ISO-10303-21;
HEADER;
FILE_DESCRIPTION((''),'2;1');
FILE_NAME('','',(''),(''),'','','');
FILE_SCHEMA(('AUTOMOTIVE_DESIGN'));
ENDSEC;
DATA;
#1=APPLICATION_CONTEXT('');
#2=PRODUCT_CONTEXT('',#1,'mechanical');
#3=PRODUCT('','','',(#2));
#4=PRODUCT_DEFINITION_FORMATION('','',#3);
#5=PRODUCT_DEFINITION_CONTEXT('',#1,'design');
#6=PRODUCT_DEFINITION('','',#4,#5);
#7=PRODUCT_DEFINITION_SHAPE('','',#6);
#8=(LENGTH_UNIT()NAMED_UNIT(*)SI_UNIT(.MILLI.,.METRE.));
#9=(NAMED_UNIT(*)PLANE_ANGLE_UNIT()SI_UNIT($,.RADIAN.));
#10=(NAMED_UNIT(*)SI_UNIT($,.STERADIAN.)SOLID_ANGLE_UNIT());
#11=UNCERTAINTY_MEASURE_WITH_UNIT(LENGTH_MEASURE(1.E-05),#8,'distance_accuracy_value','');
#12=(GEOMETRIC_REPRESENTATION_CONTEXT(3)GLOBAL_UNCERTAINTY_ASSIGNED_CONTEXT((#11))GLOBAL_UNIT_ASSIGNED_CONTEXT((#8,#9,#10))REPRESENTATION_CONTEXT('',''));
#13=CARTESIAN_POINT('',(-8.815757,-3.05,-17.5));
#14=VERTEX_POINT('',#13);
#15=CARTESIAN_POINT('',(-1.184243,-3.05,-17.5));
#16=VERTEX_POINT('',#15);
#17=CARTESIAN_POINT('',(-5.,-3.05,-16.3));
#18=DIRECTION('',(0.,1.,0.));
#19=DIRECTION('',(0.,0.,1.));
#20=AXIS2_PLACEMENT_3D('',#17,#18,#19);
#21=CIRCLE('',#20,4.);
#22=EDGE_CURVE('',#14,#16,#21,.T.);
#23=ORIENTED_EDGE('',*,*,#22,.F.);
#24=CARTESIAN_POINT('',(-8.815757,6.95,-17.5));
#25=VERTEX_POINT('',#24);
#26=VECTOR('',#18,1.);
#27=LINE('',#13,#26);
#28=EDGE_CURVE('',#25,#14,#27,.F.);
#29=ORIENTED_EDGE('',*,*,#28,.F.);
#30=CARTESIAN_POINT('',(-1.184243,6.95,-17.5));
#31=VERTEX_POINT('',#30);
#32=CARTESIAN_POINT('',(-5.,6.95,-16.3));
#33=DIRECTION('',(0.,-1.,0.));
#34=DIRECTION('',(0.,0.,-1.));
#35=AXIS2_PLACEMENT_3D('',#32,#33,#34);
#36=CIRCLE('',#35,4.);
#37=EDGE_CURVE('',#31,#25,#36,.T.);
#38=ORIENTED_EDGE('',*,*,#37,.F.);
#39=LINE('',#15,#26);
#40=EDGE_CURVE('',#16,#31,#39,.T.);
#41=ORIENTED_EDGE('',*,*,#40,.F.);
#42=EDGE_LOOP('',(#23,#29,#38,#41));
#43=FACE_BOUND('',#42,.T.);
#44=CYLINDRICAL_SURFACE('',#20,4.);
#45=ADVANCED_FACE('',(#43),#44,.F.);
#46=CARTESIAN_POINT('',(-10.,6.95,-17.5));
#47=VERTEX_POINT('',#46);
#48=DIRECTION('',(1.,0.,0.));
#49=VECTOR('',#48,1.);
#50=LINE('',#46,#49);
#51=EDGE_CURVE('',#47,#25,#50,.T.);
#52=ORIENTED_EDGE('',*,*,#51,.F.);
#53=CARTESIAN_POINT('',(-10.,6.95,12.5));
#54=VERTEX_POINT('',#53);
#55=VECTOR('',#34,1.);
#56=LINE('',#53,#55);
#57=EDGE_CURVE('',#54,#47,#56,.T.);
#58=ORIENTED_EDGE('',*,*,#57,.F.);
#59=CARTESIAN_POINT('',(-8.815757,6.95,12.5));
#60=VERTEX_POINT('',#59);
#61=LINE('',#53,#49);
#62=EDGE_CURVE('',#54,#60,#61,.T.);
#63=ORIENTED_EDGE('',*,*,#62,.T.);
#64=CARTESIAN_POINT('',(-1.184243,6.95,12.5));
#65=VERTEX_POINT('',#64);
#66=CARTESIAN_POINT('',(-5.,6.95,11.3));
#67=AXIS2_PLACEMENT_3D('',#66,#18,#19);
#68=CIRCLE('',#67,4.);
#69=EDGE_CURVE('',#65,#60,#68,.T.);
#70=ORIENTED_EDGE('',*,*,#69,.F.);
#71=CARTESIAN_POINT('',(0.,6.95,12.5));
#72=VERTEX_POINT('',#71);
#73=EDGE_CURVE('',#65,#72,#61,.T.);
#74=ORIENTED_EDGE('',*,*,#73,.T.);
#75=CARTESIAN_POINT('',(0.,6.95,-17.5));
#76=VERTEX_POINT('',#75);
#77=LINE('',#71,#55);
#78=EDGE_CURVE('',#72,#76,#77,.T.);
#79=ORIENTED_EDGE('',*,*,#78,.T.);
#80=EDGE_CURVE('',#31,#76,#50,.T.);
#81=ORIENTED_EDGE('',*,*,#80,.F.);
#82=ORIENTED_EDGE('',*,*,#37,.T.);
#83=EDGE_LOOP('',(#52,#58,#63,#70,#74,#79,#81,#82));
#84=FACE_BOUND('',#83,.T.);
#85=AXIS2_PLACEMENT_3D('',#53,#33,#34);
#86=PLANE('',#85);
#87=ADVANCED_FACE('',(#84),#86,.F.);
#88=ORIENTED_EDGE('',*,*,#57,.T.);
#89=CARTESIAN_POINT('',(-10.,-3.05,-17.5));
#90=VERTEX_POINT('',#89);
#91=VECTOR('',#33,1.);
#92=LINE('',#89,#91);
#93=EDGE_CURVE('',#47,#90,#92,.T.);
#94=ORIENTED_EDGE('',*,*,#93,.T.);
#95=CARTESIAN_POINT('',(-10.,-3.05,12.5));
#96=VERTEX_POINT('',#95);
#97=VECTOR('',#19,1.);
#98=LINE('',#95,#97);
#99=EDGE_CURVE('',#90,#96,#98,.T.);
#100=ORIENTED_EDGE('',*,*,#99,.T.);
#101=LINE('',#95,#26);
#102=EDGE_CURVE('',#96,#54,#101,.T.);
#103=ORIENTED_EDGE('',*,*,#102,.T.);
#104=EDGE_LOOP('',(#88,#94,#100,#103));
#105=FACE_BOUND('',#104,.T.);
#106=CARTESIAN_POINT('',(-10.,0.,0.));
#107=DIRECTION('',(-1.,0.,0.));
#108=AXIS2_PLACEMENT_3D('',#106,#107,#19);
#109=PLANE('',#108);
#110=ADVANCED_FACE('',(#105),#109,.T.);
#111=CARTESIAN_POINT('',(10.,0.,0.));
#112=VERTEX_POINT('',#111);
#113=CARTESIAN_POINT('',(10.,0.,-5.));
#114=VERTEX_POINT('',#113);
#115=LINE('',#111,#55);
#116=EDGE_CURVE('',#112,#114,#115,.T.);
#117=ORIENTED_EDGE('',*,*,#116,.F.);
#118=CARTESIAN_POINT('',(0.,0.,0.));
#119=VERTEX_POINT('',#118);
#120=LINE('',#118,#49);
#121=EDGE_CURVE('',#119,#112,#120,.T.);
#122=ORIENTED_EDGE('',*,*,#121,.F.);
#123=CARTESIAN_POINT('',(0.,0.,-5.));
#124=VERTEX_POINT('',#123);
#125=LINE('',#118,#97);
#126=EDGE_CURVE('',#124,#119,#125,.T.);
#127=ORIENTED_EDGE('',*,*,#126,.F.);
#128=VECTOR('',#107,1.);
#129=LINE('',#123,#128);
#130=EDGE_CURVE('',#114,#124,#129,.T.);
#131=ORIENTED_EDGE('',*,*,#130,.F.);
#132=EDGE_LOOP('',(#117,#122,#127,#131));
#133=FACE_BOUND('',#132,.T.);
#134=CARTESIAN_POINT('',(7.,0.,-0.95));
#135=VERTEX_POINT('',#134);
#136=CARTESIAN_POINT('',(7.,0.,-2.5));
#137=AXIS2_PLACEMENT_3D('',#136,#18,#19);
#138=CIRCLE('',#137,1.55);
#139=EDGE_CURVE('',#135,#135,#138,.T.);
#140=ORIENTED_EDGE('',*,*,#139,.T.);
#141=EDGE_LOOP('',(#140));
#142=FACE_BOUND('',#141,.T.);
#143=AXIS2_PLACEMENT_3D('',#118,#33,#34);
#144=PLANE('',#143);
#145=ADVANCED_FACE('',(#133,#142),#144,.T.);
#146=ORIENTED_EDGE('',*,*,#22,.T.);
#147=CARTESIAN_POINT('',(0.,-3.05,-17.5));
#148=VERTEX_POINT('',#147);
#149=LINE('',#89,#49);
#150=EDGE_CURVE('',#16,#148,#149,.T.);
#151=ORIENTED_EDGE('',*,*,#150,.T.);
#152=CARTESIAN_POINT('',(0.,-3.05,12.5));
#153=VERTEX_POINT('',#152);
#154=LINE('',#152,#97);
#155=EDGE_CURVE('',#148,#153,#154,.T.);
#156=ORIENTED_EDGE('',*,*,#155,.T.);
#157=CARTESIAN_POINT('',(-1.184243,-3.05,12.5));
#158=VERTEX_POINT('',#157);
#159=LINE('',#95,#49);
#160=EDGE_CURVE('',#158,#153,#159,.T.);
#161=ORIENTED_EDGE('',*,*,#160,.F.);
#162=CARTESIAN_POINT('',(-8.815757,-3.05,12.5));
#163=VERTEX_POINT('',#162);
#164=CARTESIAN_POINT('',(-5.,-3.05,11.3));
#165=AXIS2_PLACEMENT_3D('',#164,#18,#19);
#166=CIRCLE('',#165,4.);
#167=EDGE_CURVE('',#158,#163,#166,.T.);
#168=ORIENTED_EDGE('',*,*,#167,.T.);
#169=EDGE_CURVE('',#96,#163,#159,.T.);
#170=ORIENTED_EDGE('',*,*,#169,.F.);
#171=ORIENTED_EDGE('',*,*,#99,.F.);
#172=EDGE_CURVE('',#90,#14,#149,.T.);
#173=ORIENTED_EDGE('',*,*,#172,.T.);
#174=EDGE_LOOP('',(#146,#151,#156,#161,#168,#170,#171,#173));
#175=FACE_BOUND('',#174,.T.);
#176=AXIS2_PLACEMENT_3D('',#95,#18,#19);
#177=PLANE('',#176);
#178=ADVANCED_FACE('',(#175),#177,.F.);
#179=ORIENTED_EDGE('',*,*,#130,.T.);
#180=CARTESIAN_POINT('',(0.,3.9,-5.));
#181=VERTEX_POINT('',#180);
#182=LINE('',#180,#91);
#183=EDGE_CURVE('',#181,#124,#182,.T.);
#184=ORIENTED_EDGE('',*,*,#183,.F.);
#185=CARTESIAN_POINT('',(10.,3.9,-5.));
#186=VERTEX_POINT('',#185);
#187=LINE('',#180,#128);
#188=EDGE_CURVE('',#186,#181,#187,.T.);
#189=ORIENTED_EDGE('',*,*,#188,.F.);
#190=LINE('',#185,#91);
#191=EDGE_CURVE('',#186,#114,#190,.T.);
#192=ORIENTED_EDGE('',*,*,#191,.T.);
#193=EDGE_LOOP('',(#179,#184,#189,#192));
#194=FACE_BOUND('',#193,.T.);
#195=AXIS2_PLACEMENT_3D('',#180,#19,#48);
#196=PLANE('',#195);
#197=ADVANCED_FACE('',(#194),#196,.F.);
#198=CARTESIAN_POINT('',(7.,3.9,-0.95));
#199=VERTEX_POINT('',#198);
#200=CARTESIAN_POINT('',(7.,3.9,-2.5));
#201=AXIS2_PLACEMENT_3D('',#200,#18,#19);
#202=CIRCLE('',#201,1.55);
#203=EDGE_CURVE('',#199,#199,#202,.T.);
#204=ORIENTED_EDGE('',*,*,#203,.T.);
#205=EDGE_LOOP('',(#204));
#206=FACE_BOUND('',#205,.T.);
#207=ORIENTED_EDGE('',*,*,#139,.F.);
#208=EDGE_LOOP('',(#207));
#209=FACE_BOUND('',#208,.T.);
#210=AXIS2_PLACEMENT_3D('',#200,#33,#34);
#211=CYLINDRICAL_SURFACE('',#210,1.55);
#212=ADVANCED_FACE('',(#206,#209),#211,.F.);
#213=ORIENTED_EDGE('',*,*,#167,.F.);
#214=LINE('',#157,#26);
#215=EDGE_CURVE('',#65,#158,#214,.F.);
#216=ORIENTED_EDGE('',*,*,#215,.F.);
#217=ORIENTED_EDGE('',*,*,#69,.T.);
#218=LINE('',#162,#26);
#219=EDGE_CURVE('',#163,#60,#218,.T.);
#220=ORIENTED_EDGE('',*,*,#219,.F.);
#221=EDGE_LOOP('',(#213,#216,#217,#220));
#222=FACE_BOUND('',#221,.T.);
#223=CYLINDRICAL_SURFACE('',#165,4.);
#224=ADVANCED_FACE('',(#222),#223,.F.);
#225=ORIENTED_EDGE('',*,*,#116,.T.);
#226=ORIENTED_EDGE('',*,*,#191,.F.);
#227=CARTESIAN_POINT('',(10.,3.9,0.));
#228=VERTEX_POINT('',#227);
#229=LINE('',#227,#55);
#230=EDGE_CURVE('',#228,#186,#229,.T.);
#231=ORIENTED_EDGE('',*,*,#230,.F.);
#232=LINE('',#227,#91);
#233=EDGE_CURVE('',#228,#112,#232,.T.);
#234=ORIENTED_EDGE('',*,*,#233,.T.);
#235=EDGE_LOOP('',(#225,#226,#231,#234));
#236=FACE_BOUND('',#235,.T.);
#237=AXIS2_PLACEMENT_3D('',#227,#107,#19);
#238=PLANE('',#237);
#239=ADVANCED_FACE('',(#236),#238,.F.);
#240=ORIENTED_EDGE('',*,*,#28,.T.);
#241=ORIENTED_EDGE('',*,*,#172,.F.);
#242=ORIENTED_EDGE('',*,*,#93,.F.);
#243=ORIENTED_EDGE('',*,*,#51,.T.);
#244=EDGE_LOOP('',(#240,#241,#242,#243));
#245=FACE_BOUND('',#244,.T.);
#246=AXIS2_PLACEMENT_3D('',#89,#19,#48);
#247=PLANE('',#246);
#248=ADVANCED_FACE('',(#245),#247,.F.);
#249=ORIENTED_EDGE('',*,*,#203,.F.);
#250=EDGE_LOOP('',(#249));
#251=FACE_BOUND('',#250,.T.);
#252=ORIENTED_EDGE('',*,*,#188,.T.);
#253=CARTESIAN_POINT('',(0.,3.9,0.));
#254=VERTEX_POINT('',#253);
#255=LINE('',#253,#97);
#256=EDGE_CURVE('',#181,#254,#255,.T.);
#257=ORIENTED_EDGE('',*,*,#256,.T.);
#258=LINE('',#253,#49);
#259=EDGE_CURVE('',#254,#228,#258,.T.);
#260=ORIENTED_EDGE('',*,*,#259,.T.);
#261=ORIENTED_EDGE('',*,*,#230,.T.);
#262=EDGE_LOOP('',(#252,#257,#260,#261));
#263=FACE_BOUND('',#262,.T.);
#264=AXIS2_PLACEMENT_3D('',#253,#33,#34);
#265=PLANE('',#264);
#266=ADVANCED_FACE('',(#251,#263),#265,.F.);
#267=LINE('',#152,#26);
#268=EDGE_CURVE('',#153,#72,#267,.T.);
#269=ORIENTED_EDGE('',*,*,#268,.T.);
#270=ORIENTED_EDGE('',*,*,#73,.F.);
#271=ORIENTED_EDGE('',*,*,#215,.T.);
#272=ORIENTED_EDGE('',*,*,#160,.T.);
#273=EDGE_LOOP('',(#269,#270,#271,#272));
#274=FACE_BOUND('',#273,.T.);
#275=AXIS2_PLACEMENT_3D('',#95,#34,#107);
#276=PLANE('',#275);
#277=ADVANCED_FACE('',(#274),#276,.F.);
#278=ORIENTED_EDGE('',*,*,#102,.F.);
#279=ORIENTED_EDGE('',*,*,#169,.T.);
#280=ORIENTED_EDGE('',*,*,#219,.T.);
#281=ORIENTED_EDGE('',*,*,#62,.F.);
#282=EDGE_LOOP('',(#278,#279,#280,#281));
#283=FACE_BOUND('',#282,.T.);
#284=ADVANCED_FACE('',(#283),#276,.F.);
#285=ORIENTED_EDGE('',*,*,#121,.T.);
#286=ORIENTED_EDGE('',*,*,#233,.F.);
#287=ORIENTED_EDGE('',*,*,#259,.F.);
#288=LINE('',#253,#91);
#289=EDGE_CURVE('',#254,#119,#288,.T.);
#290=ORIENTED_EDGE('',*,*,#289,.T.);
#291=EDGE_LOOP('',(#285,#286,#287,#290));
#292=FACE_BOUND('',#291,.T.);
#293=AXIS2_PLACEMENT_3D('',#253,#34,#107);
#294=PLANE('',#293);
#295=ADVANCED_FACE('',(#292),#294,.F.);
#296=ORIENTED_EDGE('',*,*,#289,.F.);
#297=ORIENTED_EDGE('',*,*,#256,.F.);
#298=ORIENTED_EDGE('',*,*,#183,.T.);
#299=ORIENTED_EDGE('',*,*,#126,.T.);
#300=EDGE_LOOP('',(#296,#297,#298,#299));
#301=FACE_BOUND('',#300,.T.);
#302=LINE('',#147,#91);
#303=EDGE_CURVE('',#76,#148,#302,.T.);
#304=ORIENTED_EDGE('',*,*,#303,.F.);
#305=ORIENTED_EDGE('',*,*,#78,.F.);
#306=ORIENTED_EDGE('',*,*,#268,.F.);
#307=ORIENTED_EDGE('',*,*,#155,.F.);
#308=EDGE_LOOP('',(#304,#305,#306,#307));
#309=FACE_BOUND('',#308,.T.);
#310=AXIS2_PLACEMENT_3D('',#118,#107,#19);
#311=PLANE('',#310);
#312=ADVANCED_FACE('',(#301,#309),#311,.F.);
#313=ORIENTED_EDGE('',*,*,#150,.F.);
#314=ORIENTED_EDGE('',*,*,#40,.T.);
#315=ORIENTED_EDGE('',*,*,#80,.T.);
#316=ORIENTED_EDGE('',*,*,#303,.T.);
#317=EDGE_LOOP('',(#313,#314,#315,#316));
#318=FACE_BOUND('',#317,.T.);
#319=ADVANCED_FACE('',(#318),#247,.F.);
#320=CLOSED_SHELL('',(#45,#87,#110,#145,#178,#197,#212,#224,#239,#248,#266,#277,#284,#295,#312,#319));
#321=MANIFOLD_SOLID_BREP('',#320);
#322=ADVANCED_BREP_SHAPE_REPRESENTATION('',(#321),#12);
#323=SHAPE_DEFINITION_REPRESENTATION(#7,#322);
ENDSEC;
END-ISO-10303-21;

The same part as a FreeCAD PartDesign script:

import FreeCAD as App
import Part
import Sketcher

V = App.Vector


def add_polygon(sketch, points):
    """Adds a closed chain of lines whose ends are joined by coincident constraints."""
    first, n = sketch.GeometryCount, len(points)
    for a, b in zip(points, points[1:] + points[:1]):
        sketch.addGeometry(Part.LineSegment(App.Vector(*a, 0), App.Vector(*b, 0)), False)
    for i in range(n):
        sketch.addConstraint(Sketcher.Constraint("Coincident", first + i, 2, first + (i + 1) % n, 1))

doc = App.newDocument("Part")
body = doc.addObject("PartDesign::Body", "Body")

sketch1 = doc.addObject("Sketcher::SketchObject", "Sketch")
body.addObject(sketch1)
sketch1.AttachmentSupport = (doc.XZ_Plane, [""])
sketch1.MapMode = "FlatFace"
add_polygon(sketch1, [(0, -5), (0, 0), (10, 0), (10, -5)])
sketch1.addGeometry(Part.Circle(V(7, -2.5, 0), V(0, 0, 1), 1.6), False)
sketch1.addConstraint(Sketcher.Constraint("Vertical", 0))
sketch1.addConstraint(Sketcher.Constraint("Horizontal", 1))
sketch1.addConstraint(Sketcher.Constraint("Vertical", 2))
sketch1.addConstraint(Sketcher.Constraint("Horizontal", 3))
sketch1.addConstraint(Sketcher.Constraint("Coincident", 0, 2, -1, 1))
sketch1.addConstraint(Sketcher.Constraint("Diameter", 4, 3.1))
sketch1.addConstraint(Sketcher.Constraint("DistanceX", 1, 1, 1, 2, 10.0))
sketch1.addConstraint(Sketcher.Constraint("DistanceY", 0, 1, 0, 2, 5.0))
sketch1.addConstraint(Sketcher.Constraint("DistanceX", -1, 1, 4, 3, 7.0))
sketch1.addConstraint(Sketcher.Constraint("DistanceY", 4, 3, -1, 1, 2.5))
pad1 = doc.addObject("PartDesign::Pad", "Pad")
body.addObject(pad1)
pad1.Profile = sketch1
pad1.Length = 3.9
pad1.Reversed = True

sketch2 = doc.addObject("Sketcher::SketchObject", "Sketch001")
body.addObject(sketch2)
sketch2.AttachmentSupport = (doc.YZ_Plane, [""])
sketch2.MapMode = "FlatFace"
add_polygon(sketch2, [(7, -18), (-3, -18), (-3, 12), (7, 12)])
sketch2.addConstraint(Sketcher.Constraint("Horizontal", 0))
sketch2.addConstraint(Sketcher.Constraint("Vertical", 1))
sketch2.addConstraint(Sketcher.Constraint("Horizontal", 2))
sketch2.addConstraint(Sketcher.Constraint("Vertical", 3))
sketch2.addConstraint(Sketcher.Constraint("DistanceX", 0, 2, 0, 1, 10.0))
sketch2.addConstraint(Sketcher.Constraint("DistanceY", 1, 1, 1, 2, 30.0))
sketch2.addConstraint(Sketcher.Constraint("DistanceY", 0, 2, -1, 1, 17.5))
sketch2.addConstraint(Sketcher.Constraint("DistanceX", 0, 2, -1, 1, 3.05))
pad2 = doc.addObject("PartDesign::Pad", "Pad001")
body.addObject(pad2)
pad2.Profile = sketch2
pad2.Length = 10
pad2.Reversed = True

sketch3 = doc.addObject("Sketcher::SketchObject", "Sketch002")
body.addObject(sketch3)
sketch3.AttachmentSupport = (doc.XZ_Plane, [""])
sketch3.MapMode = "FlatFace"
sketch3.AttachmentOffset = App.Placement(V(0, 0, -6.95), App.Rotation())
sketch3.addGeometry(Part.Circle(V(-5, -16.3, 0), V(0, 0, 1), 4), False)
sketch3.addGeometry(Part.Circle(V(-5, 11.3, 0), V(0, 0, 1), 4), False)
sketch3.addConstraint(Sketcher.Constraint("Equal", 0, 1))
sketch3.addConstraint(Sketcher.Constraint("Vertical", 0, 3, 1, 3))
sketch3.addConstraint(Sketcher.Constraint("Diameter", 0, 8.0))
sketch3.addConstraint(Sketcher.Constraint("DistanceX", 0, 3, -1, 1, 5.0))
sketch3.addConstraint(Sketcher.Constraint("DistanceY", 0, 3, -1, 1, 16.3))
sketch3.addConstraint(Sketcher.Constraint("DistanceY", -1, 1, 1, 3, 11.3))
pocket1 = doc.addObject("PartDesign::Pocket", "Pocket")
body.addObject(pocket1)
pocket1.Profile = sketch3
pocket1.Length = 10
pocket1.Reversed = True

doc.recompute()
